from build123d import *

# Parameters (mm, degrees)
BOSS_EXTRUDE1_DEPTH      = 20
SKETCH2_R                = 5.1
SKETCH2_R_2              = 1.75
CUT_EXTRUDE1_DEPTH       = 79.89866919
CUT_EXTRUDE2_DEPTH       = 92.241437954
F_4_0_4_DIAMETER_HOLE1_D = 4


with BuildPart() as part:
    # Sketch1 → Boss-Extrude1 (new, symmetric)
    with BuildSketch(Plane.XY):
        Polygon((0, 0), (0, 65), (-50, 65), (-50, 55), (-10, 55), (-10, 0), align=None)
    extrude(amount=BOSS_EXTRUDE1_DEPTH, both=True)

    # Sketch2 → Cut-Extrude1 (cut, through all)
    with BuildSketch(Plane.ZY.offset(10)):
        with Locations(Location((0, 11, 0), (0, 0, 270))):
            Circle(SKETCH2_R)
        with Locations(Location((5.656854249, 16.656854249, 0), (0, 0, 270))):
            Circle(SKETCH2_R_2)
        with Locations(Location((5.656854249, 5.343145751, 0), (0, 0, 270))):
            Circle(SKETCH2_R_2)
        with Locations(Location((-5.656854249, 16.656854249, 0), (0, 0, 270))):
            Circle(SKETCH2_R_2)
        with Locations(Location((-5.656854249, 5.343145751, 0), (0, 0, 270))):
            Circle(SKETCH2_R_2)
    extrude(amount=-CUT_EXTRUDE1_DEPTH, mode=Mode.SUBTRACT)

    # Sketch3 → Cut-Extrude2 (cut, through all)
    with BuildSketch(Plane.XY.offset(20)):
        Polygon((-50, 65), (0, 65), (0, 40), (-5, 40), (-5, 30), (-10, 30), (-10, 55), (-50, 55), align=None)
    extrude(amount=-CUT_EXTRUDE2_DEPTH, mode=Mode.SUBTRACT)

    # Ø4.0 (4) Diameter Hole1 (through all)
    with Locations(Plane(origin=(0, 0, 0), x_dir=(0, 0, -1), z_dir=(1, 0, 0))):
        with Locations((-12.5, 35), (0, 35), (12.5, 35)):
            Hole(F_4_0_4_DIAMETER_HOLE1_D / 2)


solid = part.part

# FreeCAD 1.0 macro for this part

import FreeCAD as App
import Part
import Sketcher

V = App.Vector
Q = App.Units.Quantity

doc = App.newDocument("Part")
params = doc.addObject("Spreadsheet::Sheet", "Params")
for row, (alias, value) in enumerate([
    ("sketch1_width", "50 mm"),
    ("sketch1_width2", "40 mm"),
    ("sketch1_height", "65 mm"),
    ("pad1_length", "40 mm"),
    ("sketch2_diameter", "10.2 mm"),
    ("sketch2_diameter2", "3.5 mm"),
    ("sketch3_width", "50 mm"),
    ("sketch3_width2", "40 mm"),
    ("sketch3_height", "10 mm"),
    ("sketch3_height2", "25 mm"),
    ("sketch4_diameter", "4 mm"),
    ("hole_diameter", "4 mm"),
], start=1):
    params.set(f"A{row}", alias)
    params.set(f"B{row}", "=" + value)
    params.setAlias(f"B{row}", alias)

body = doc.addObject("PartDesign::Body", "Body")

sketch1 = doc.addObject("Sketcher::SketchObject", "Sketch")
body.addObject(sketch1)
sketch1.AttachmentSupport = (doc.XY_Plane, [""])
sketch1.MapMode = "FlatFace"
sketch1.addGeometry([
    Part.LineSegment(V(0, 0, 0), V(0, 65, 0)),
    Part.LineSegment(V(0, 65, 0), V(-50, 65, 0)),
    Part.LineSegment(V(-50, 65, 0), V(-50, 55, 0)),
    Part.LineSegment(V(-50, 55, 0), V(-10, 55, 0)),
    Part.LineSegment(V(-10, 55, 0), V(-10, 0, 0)),
    Part.LineSegment(V(-10, 0, 0), V(0, 0, 0)),
], False)
sketch1.addConstraint([
    Sketcher.Constraint("Coincident", 0, 2, 1, 1),
    Sketcher.Constraint("Coincident", 1, 2, 2, 1),
    Sketcher.Constraint("Coincident", 2, 2, 3, 1),
    Sketcher.Constraint("Coincident", 3, 2, 4, 1),
    Sketcher.Constraint("Coincident", 4, 2, 5, 1),
    Sketcher.Constraint("Coincident", 5, 2, 0, 1),
    Sketcher.Constraint("Vertical", 0),
    Sketcher.Constraint("Horizontal", 1),
    Sketcher.Constraint("Vertical", 2),
    Sketcher.Constraint("Horizontal", 3),
    Sketcher.Constraint("Vertical", 4),
    Sketcher.Constraint("Horizontal", 5),
    Sketcher.Constraint("Coincident", 5, 2, -1, 1),
    Sketcher.Constraint("Equal", 5, 2),
    Sketcher.Constraint("DistanceX", 1, 2, 1, 1, Q("50 mm")),
    Sketcher.Constraint("DistanceX", 3, 1, 3, 2, Q("40 mm")),
    Sketcher.Constraint("DistanceY", 0, 1, 0, 2, Q("65 mm")),
])
sketch1.setExpression("Constraints[14]", "Params.sketch1_width")
sketch1.setExpression("Constraints[15]", "Params.sketch1_width2")
sketch1.setExpression("Constraints[16]", "Params.sketch1_height")
pad1 = doc.addObject("PartDesign::Pad", "Pad")
body.addObject(pad1)
pad1.Profile = sketch1
pad1.setExpression("Length", "Params.pad1_length")
pad1.Midplane = True

sketch2 = doc.addObject("Sketcher::SketchObject", "Sketch001")
body.addObject(sketch2)
sketch2.AttachmentSupport = (doc.YZ_Plane, [""])
sketch2.MapMode = "FlatFace"
sketch2.AttachmentOffset = App.Placement(V(0, 0, -10), App.Rotation())
sketch2.addGeometry([
    Part.Circle(V(11, 0, 0), V(0, 0, 1), 5.1),
    Part.Circle(V(16.7, 5.7, 0), V(0, 0, 1), 1.8),
    Part.Circle(V(5.3, 5.7, 0), V(0, 0, 1), 1.8),
    Part.Circle(V(16.7, -5.7, 0), V(0, 0, 1), 1.8),
    Part.Circle(V(5.3, -5.7, 0), V(0, 0, 1), 1.8),
], False)
sketch2.addConstraint([
    Sketcher.Constraint("Equal", 1, 2),
    Sketcher.Constraint("Equal", 2, 3),
    Sketcher.Constraint("Equal", 3, 4),
    Sketcher.Constraint("Symmetric", 1, 3, 3, 3, -1),
    Sketcher.Constraint("Symmetric", 2, 3, 4, 3, -1),
    Sketcher.Constraint("PointOnObject", 0, 3, -1),
    Sketcher.Constraint("Horizontal", 1, 3, 2, 3),
    Sketcher.Constraint("Diameter", 0, Q("10.2 mm")),
    Sketcher.Constraint("Diameter", 1, Q("3.5 mm")),
    Sketcher.Constraint("DistanceX", -1, 1, 0, 3, Q("11 mm")),
    Sketcher.Constraint("DistanceX", 2, 3, 1, 3, Q("11.313708 mm")),
    Sketcher.Constraint("DistanceY", 3, 3, 1, 3, Q("11.313708 mm")),
    Sketcher.Constraint("DistanceX", -1, 1, 1, 3, Q("16.656854 mm")),
])
sketch2.setExpression("Constraints[7]", "Params.sketch2_diameter")
sketch2.setExpression("Constraints[8]", "Params.sketch2_diameter2")
pocket1 = doc.addObject("PartDesign::Pocket", "Pocket")
body.addObject(pocket1)
pocket1.Profile = sketch2
pocket1.Type = "ThroughAll"
pocket1.Reversed = True

sketch3 = doc.addObject("Sketcher::SketchObject", "Sketch002")
body.addObject(sketch3)
sketch3.AttachmentSupport = (doc.XY_Plane, [""])
sketch3.MapMode = "FlatFace"
sketch3.AttachmentOffset = App.Placement(V(0, 0, 20), App.Rotation())
sketch3.addGeometry([
    Part.LineSegment(V(0, 65, 0), V(-50, 65, 0)),
    Part.LineSegment(V(-50, 65, 0), V(-50, 55, 0)),
    Part.LineSegment(V(-50, 55, 0), V(-10, 55, 0)),
    Part.LineSegment(V(-10, 55, 0), V(-10, 30, 0)),
    Part.LineSegment(V(-10, 30, 0), V(-5, 30, 0)),
    Part.LineSegment(V(-5, 30, 0), V(-5, 40, 0)),
    Part.LineSegment(V(-5, 40, 0), V(0, 40, 0)),
    Part.LineSegment(V(0, 40, 0), V(0, 65, 0)),
], False)
sketch3.addConstraint([
    Sketcher.Constraint("Coincident", 0, 2, 1, 1),
    Sketcher.Constraint("Coincident", 1, 2, 2, 1),
    Sketcher.Constraint("Coincident", 2, 2, 3, 1),
    Sketcher.Constraint("Coincident", 3, 2, 4, 1),
    Sketcher.Constraint("Coincident", 4, 2, 5, 1),
    Sketcher.Constraint("Coincident", 5, 2, 6, 1),
    Sketcher.Constraint("Coincident", 6, 2, 7, 1),
    Sketcher.Constraint("Coincident", 7, 2, 0, 1),
    Sketcher.Constraint("Horizontal", 0),
    Sketcher.Constraint("Vertical", 1),
    Sketcher.Constraint("Horizontal", 2),
    Sketcher.Constraint("Vertical", 3),
    Sketcher.Constraint("Horizontal", 4),
    Sketcher.Constraint("Vertical", 5),
    Sketcher.Constraint("Horizontal", 6),
    Sketcher.Constraint("Vertical", 7),
    Sketcher.Constraint("PointOnObject", 6, 2, -2),
    Sketcher.Constraint("Equal", 4, 6),
    Sketcher.Constraint("Equal", 1, 5),
    Sketcher.Constraint("DistanceX", 0, 2, 0, 1, Q("50 mm")),
    Sketcher.Constraint("DistanceX", 2, 1, 2, 2, Q("40 mm")),
    Sketcher.Constraint("DistanceY", 1, 2, 1, 1, Q("10 mm")),
    Sketcher.Constraint("DistanceY", 3, 2, 3, 1, Q("25 mm")),
    Sketcher.Constraint("DistanceY", -1, 1, 0, 2, Q("65 mm")),
])
sketch3.setExpression("Constraints[19]", "Params.sketch3_width")
sketch3.setExpression("Constraints[20]", "Params.sketch3_width2")
sketch3.setExpression("Constraints[21]", "Params.sketch3_height")
sketch3.setExpression("Constraints[22]", "Params.sketch3_height2")
pocket2 = doc.addObject("PartDesign::Pocket", "Pocket001")
body.addObject(pocket2)
pocket2.Profile = sketch3
pocket2.Type = "ThroughAll"

sketch4 = doc.addObject("Sketcher::SketchObject", "Sketch003")
body.addObject(sketch4)
sketch4.AttachmentSupport = (doc.YZ_Plane, [""])
sketch4.MapMode = "FlatFace"
sketch4.addGeometry([
    Part.Circle(V(35, 12.5, 0), V(0, 0, 1), 2),
    Part.Circle(V(35, 0, 0), V(0, 0, 1), 2),
    Part.Circle(V(35, -12.5, 0), V(0, 0, 1), 2),
], False)
sketch4.addConstraint([
    Sketcher.Constraint("Equal", 0, 1),
    Sketcher.Constraint("Equal", 1, 2),
    Sketcher.Constraint("Symmetric", 0, 3, 2, 3, -1),
    Sketcher.Constraint("PointOnObject", 1, 3, -1),
    Sketcher.Constraint("Vertical", 0, 3, 1, 3),
    Sketcher.Constraint("Diameter", 0, Q("4 mm")),
    Sketcher.Constraint("DistanceX", -1, 1, 0, 3, Q("35 mm")),
    Sketcher.Constraint("DistanceY", 2, 3, 0, 3, Q("25 mm")),
])
sketch4.setExpression("Constraints[5]", "Params.sketch4_diameter")
doc.recompute()
hole = doc.addObject("PartDesign::Hole", "Hole")
body.addObject(hole)
hole.Profile = sketch4
hole.ThreadType = "None"
hole.setExpression("Diameter", "Params.hole_diameter")
hole.DepthType = "ThroughAll"

doc.recompute()
